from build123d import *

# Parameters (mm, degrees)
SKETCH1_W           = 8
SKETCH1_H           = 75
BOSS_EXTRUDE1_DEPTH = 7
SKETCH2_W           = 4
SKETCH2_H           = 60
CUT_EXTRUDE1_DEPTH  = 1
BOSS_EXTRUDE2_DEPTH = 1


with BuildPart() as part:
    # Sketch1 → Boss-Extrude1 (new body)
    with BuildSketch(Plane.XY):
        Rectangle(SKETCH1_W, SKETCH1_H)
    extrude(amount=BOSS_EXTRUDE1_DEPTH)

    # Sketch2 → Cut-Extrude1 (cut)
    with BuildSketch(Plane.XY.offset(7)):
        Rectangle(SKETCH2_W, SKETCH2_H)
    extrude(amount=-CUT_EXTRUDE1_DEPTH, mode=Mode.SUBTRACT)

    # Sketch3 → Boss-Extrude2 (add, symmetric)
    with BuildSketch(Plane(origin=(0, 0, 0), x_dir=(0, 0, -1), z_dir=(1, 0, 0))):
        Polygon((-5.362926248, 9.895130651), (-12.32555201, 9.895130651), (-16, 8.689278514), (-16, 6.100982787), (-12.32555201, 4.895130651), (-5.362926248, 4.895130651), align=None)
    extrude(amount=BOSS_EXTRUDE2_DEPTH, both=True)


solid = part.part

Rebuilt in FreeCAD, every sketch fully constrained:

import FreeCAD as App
import Part
import Sketcher

doc = App.newDocument("Part")
body = doc.addObject("PartDesign::Body", "Body")

sketch1 = body.newObject("Sketcher::SketchObject", "Sketch")
sketch1.AttachmentSupport = (doc.getObject("XY_Plane"), [""])
sketch1.MapMode = "FlatFace"
sketch1.addGeometry([
    Part.LineSegment(App.Vector(-4, 37.5, 0), App.Vector(-4, -37.5, 0)),
    Part.LineSegment(App.Vector(-4, -37.5, 0), App.Vector(4, -37.5, 0)),
    Part.LineSegment(App.Vector(4, -37.5, 0), App.Vector(4, 37.5, 0)),
    Part.LineSegment(App.Vector(4, 37.5, 0), App.Vector(-4, 37.5, 0)),
], False)
sketch1.addConstraint([
    Sketcher.Constraint("Coincident", 0, 2, 1, 1),
    Sketcher.Constraint("Coincident", 1, 2, 2, 1),
    Sketcher.Constraint("Coincident", 2, 2, 3, 1),
    Sketcher.Constraint("Coincident", 3, 2, 0, 1),
    Sketcher.Constraint("Vertical", 0),
    Sketcher.Constraint("Horizontal", 1),
    Sketcher.Constraint("Vertical", 2),
    Sketcher.Constraint("Horizontal", 3),
    Sketcher.Constraint("Symmetric", 0, 2, 2, 2, -1, 1),
    Sketcher.Constraint("DistanceX", 1, 1, 1, 2, 8.0),
    Sketcher.Constraint("DistanceY", 0, 2, 0, 1, 75.0),
])
pad1 = body.newObject("PartDesign::Pad", "Pad")
pad1.Profile = sketch1
pad1.Length = 7

sketch2 = body.newObject("Sketcher::SketchObject", "Sketch001")
sketch2.AttachmentSupport = (doc.getObject("XY_Plane"), [""])
sketch2.MapMode = "FlatFace"
sketch2.AttachmentOffset = App.Placement(App.Vector(0, 0, 7), App.Rotation())
sketch2.addGeometry([
    Part.LineSegment(App.Vector(-2, 30, 0), App.Vector(-2, -30, 0)),
    Part.LineSegment(App.Vector(-2, -30, 0), App.Vector(2, -30, 0)),
    Part.LineSegment(App.Vector(2, -30, 0), App.Vector(2, 30, 0)),
    Part.LineSegment(App.Vector(2, 30, 0), App.Vector(-2, 30, 0)),
], False)
sketch2.addConstraint([
    Sketcher.Constraint("Coincident", 0, 2, 1, 1),
    Sketcher.Constraint("Coincident", 1, 2, 2, 1),
    Sketcher.Constraint("Coincident", 2, 2, 3, 1),
    Sketcher.Constraint("Coincident", 3, 2, 0, 1),
    Sketcher.Constraint("Vertical", 0),
    Sketcher.Constraint("Horizontal", 1),
    Sketcher.Constraint("Vertical", 2),
    Sketcher.Constraint("Horizontal", 3),
    Sketcher.Constraint("Symmetric", 0, 2, 2, 2, -1, 1),
    Sketcher.Constraint("DistanceX", 1, 1, 1, 2, 4.0),
    Sketcher.Constraint("DistanceY", 0, 2, 0, 1, 60.0),
])
pocket1 = body.newObject("PartDesign::Pocket", "Pocket")
pocket1.Profile = sketch2
pocket1.Length = 1

sketch3 = body.newObject("Sketcher::SketchObject", "Sketch002")
sketch3.AttachmentSupport = (doc.getObject("YZ_Plane"), [""])
sketch3.MapMode = "FlatFace"
sketch3.addGeometry([
    Part.LineSegment(App.Vector(9.895131, 5.362926, 0), App.Vector(9.895131, 12.325552, 0)),
    Part.LineSegment(App.Vector(9.895131, 12.325552, 0), App.Vector(8.689279, 16, 0)),
    Part.LineSegment(App.Vector(8.689279, 16, 0), App.Vector(6.100983, 16, 0)),
    Part.LineSegment(App.Vector(6.100983, 16, 0), App.Vector(4.895131, 12.325552, 0)),
    Part.LineSegment(App.Vector(4.895131, 12.325552, 0), App.Vector(4.895131, 5.362926, 0)),
    Part.LineSegment(App.Vector(4.895131, 5.362926, 0), App.Vector(9.895131, 5.362926, 0)),
], False)
sketch3.addConstraint([
    Sketcher.Constraint("Coincident", 0, 2, 1, 1),
    Sketcher.Constraint("Coincident", 1, 2, 2, 1),
    Sketcher.Constraint("Coincident", 2, 2, 3, 1),
    Sketcher.Constraint("Coincident", 3, 2, 4, 1),
    Sketcher.Constraint("Coincident", 4, 2, 5, 1),
    Sketcher.Constraint("Coincident", 5, 2, 0, 1),
    Sketcher.Constraint("Vertical", 0),
    Sketcher.Constraint("Horizontal", 2),
    Sketcher.Constraint("Vertical", 4),
    Sketcher.Constraint("Horizontal", 5),
    Sketcher.Constraint("Horizontal", 0, 2, 3, 2),
    Sketcher.Constraint("Equal", 1, 3),
    Sketcher.Constraint("DistanceX", 5, 1, 5, 2, 5.0),
    Sketcher.Constraint("DistanceY", -1, 1, 1, 2, 16.0),
    Sketcher.Constraint("DistanceX", 2, 2, 2, 1, 2.588296),
    Sketcher.Constraint("DistanceY", 0, 1, 0, 2, 6.962626),
    Sketcher.Constraint("DistanceX", -1, 1, 0, 2, 9.895131),
    Sketcher.Constraint("Distance", 1, 3.867253),
])
pad2 = body.newObject("PartDesign::Pad", "Pad001")
pad2.Profile = sketch3
pad2.Length = 2
pad2.Midplane = True

doc.recompute()
